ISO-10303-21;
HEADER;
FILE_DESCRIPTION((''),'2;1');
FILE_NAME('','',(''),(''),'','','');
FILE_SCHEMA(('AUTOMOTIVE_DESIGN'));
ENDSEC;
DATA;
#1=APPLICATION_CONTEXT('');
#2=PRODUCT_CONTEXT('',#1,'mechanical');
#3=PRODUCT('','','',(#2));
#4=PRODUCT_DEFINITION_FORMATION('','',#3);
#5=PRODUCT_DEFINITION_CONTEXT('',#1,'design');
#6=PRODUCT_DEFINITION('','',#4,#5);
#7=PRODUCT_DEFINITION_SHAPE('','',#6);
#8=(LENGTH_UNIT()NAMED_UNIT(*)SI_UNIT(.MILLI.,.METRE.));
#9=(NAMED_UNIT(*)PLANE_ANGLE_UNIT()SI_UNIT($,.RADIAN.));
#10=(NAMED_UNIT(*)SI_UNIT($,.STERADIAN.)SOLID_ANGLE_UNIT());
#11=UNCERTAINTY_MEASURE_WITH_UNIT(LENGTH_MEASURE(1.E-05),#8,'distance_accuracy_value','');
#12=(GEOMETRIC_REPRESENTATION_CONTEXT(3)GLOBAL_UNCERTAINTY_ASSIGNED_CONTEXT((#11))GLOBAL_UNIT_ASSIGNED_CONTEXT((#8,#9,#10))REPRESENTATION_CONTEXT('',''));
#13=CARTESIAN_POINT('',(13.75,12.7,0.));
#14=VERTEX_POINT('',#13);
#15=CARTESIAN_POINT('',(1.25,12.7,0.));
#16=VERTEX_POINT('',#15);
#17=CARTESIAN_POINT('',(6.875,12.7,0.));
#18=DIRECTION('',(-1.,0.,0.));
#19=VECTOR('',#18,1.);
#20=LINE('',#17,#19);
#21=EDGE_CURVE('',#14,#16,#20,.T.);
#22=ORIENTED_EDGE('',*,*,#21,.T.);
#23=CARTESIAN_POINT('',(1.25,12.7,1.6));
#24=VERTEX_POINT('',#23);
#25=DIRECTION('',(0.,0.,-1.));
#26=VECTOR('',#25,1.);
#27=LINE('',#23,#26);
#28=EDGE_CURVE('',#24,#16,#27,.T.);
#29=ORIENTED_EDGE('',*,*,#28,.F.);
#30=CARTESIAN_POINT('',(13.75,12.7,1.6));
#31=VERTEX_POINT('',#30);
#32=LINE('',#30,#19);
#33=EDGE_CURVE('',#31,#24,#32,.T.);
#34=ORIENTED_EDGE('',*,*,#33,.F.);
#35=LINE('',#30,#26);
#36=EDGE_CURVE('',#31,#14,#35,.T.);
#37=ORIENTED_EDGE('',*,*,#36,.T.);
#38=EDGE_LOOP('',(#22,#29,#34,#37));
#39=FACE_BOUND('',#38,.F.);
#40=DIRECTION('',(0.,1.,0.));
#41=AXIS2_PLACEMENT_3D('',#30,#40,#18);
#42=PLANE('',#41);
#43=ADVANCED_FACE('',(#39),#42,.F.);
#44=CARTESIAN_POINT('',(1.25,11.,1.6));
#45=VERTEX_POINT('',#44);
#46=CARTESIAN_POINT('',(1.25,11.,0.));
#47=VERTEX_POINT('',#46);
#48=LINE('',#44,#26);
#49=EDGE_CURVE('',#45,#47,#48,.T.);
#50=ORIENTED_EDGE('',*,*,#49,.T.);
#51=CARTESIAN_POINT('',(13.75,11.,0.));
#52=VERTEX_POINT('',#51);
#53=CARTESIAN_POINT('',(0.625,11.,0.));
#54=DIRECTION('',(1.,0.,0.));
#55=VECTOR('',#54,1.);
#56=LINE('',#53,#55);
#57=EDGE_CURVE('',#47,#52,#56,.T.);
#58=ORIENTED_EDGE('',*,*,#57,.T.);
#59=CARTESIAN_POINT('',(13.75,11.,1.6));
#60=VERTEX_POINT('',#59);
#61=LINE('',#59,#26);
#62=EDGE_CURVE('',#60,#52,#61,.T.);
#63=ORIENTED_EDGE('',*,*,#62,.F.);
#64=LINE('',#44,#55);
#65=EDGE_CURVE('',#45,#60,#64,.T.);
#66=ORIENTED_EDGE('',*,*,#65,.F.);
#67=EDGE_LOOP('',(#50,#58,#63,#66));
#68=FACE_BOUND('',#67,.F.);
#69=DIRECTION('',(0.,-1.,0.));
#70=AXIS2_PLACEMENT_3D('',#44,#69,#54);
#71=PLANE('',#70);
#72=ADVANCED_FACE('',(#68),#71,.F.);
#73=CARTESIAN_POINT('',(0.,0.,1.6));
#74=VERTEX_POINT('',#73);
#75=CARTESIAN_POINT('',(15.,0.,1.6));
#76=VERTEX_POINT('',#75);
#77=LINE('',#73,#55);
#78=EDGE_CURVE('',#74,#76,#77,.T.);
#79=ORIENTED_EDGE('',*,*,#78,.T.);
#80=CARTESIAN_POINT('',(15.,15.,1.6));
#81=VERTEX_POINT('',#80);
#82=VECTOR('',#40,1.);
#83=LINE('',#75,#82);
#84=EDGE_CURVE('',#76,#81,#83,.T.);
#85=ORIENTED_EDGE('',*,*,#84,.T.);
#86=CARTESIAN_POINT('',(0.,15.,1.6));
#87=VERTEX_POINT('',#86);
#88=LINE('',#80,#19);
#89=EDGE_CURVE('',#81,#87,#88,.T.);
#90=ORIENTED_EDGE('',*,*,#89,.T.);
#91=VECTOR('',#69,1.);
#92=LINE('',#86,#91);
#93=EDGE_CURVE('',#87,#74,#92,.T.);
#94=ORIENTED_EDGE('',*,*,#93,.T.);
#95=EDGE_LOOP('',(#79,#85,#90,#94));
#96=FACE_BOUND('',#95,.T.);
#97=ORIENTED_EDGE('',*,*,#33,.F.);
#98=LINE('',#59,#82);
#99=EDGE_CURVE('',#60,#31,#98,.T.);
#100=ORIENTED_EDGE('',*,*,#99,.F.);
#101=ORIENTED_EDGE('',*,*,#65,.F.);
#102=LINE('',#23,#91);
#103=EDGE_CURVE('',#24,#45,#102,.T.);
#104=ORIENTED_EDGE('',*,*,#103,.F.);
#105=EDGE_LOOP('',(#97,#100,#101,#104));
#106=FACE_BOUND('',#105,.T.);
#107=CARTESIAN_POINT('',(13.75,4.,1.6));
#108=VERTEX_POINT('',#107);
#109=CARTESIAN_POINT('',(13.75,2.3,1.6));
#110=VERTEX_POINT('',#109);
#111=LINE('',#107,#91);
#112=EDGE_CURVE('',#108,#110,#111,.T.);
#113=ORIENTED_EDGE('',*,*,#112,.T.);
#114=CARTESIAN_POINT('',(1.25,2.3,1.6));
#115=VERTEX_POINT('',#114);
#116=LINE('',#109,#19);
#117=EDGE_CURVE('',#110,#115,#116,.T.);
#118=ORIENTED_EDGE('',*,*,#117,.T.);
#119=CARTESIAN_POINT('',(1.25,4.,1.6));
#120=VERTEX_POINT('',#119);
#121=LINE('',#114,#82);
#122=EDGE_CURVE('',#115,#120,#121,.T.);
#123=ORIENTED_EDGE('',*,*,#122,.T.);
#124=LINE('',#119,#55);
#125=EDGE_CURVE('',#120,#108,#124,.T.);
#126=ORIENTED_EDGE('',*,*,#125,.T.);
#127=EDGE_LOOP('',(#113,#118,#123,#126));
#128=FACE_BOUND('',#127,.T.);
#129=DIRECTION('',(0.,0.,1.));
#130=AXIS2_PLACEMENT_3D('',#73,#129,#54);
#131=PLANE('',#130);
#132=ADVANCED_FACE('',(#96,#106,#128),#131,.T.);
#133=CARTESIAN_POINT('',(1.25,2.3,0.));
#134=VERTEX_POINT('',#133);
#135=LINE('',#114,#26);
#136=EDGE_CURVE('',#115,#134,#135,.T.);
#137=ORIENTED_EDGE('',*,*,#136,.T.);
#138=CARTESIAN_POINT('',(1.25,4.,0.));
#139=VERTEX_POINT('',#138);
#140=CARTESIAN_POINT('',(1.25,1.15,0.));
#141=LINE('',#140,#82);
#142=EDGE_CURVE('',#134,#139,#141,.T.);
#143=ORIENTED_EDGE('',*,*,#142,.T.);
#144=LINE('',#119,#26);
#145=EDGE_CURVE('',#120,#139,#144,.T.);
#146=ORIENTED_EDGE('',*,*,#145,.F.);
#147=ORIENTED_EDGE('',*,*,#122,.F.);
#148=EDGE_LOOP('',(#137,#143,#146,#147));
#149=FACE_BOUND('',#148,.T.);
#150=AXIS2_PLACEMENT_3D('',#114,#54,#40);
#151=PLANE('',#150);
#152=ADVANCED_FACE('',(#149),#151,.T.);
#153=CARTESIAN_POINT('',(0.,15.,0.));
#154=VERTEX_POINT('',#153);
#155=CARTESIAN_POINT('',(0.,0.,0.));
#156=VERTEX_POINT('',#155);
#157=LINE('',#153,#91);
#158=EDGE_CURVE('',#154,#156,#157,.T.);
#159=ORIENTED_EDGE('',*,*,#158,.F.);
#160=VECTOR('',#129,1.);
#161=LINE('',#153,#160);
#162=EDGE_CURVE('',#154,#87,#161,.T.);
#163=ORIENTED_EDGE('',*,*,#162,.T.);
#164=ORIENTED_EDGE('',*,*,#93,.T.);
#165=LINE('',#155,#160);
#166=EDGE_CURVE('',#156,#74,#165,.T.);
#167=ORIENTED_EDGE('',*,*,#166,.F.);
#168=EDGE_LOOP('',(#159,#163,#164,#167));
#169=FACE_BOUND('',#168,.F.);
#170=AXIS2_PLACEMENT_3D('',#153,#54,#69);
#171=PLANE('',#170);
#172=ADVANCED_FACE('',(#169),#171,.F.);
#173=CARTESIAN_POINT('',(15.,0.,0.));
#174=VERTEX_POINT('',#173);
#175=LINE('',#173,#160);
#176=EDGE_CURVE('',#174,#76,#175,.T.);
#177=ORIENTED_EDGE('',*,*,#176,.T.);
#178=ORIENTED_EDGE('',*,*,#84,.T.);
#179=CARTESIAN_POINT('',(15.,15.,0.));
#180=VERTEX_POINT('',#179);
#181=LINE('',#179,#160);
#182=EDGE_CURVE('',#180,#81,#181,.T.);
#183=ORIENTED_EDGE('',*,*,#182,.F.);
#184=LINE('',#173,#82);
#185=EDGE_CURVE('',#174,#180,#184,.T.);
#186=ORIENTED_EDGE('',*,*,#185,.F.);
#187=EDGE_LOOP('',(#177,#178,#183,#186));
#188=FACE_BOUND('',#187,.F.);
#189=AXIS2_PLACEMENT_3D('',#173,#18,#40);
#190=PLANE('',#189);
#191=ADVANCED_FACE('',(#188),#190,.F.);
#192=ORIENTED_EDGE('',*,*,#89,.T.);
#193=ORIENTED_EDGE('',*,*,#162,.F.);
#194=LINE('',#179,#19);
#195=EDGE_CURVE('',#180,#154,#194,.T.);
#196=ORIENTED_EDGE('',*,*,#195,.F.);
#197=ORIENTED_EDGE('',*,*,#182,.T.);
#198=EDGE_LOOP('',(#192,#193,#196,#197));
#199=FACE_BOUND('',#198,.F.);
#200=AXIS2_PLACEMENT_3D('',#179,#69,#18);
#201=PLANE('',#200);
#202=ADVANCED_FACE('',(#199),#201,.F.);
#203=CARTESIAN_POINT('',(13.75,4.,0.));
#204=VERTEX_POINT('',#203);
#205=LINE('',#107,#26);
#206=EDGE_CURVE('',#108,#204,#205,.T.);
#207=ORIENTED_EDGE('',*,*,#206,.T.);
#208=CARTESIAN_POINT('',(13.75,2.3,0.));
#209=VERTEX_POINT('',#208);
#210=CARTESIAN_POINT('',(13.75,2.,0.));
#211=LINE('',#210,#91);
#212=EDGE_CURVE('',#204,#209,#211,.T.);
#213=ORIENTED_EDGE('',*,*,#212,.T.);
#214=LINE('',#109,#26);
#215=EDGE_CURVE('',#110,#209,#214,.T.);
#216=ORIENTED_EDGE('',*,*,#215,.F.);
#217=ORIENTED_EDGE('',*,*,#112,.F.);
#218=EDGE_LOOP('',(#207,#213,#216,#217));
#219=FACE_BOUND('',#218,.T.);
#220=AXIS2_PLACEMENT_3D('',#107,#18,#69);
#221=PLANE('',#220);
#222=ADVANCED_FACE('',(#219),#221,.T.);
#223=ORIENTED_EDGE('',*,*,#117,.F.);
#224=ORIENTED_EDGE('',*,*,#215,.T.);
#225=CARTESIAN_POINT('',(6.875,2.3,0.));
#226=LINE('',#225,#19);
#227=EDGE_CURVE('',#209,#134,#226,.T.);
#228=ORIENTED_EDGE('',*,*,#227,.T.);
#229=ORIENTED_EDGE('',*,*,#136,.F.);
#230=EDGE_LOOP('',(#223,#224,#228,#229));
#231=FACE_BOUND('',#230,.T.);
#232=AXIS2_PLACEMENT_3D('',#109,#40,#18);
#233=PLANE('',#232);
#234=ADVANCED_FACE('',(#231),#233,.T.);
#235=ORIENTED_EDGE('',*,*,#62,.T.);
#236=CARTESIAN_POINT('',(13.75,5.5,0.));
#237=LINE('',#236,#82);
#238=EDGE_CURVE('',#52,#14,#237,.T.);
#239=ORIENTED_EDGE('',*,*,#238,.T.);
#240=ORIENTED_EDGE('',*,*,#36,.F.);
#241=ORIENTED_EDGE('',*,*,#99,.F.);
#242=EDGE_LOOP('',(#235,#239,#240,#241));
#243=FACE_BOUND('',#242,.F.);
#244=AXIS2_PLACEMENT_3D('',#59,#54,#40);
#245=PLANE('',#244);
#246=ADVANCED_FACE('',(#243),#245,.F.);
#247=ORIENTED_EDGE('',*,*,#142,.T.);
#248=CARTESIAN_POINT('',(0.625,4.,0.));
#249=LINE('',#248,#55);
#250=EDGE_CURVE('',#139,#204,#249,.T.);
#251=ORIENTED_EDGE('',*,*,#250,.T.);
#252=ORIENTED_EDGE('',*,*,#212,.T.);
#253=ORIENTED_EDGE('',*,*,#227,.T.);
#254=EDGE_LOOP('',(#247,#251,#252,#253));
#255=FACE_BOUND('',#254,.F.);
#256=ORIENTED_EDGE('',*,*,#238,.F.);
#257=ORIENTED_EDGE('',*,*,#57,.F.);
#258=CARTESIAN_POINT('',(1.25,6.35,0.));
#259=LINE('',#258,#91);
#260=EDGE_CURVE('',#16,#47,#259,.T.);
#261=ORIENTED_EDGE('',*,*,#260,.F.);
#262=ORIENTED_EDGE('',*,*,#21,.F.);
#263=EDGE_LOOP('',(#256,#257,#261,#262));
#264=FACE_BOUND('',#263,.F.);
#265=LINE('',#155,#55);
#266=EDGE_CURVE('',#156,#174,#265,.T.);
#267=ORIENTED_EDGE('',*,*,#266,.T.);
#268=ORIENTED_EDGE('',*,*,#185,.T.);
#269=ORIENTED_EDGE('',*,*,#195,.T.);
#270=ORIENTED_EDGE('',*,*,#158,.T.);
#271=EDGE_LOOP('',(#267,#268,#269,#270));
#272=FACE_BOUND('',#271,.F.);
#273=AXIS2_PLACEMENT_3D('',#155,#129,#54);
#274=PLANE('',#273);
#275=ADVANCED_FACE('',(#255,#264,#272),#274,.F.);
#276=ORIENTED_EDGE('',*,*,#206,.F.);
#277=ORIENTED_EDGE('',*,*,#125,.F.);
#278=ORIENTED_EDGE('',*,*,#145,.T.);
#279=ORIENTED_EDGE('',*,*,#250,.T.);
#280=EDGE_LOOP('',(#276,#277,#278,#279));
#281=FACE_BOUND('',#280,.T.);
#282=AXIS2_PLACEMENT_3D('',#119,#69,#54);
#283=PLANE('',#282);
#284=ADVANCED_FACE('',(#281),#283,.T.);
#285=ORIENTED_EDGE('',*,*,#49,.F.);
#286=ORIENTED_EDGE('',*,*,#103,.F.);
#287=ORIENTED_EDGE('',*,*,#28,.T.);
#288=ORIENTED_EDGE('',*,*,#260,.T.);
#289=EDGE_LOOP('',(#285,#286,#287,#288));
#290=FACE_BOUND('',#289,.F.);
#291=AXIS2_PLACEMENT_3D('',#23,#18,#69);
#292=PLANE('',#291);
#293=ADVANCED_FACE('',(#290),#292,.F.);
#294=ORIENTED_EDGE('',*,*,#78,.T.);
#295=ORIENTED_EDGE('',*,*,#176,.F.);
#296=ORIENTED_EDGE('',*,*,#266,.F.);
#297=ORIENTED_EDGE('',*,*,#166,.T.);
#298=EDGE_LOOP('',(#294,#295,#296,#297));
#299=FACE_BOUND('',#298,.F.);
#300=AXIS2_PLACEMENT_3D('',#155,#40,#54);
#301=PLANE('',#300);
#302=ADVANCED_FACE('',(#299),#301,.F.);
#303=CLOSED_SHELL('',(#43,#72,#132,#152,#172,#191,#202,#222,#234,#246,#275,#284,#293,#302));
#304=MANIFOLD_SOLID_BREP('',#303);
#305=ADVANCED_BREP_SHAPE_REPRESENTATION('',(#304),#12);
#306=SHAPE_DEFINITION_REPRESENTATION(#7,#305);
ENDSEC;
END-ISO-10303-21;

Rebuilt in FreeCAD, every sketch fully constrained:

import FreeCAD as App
import Part
import Sketcher

V = App.Vector
Q = App.Units.Quantity


def add_polygon(sketch, points):
    """Adds a closed chain of lines whose ends are joined by coincident constraints."""
    first, n = sketch.GeometryCount, len(points)
    for a, b in zip(points, points[1:] + points[:1]):
        sketch.addGeometry(Part.LineSegment(App.Vector(*a, 0), App.Vector(*b, 0)), False)
    for i in range(n):
        sketch.addConstraint(Sketcher.Constraint("Coincident", first + i, 2, first + (i + 1) % n, 1))

doc = App.newDocument("Part")
body = doc.addObject("PartDesign::Body", "Body")

sketch1 = body.newObject("Sketcher::SketchObject", "Sketch")
sketch1.AttachmentSupport = (doc.getObject("XY_Plane"), [""])
sketch1.MapMode = "FlatFace"
add_polygon(sketch1, [(0, 15), (0, 0), (15, 0), (15, 15)])
sketch1.addConstraint([
    Sketcher.Constraint("Vertical", 0),
    Sketcher.Constraint("Horizontal", 1),
    Sketcher.Constraint("Vertical", 2),
    Sketcher.Constraint("Horizontal", 3),
    Sketcher.Constraint("Coincident", 0, 2, -1, 1),
    Sketcher.Constraint("Equal", 3, 0),
    Sketcher.Constraint("DistanceX", 1, 1, 1, 2, Q("15 mm")),
])
pad1 = body.newObject("PartDesign::Pad", "Pad")
pad1.Profile = sketch1
pad1.Length = 1.6

sketch2 = body.newObject("Sketcher::SketchObject", "Sketch001")
sketch2.AttachmentSupport = (doc.getObject("XY_Plane"), [""])
sketch2.MapMode = "FlatFace"
sketch2.AttachmentOffset = App.Placement(V(0, 0, 1.6), App.Rotation())
add_polygon(sketch2, [(13.8, 4), (1.2, 4), (1.2, 2.3), (13.8, 2.3)])
add_polygon(sketch2, [(1.2, 12.7), (1.2, 11), (13.8, 11), (13.8, 12.7)])
sketch2.addConstraint([
    Sketcher.Constraint("Horizontal", 0),
    Sketcher.Constraint("Vertical", 1),
    Sketcher.Constraint("Horizontal", 2),
    Sketcher.Constraint("Vertical", 3),
    Sketcher.Constraint("Vertical", 4),
    Sketcher.Constraint("Horizontal", 5),
    Sketcher.Constraint("Vertical", 6),
    Sketcher.Constraint("Horizontal", 7),
    Sketcher.Constraint("Vertical", 1, 2, 4, 2),
    Sketcher.Constraint("Vertical", 3, 2, 5, 2),
    Sketcher.Constraint("Equal", 3, 4),
    Sketcher.Constraint("DistanceX", 0, 2, 0, 1, Q("12.5 mm")),
    Sketcher.Constraint("DistanceY", 1, 2, 1, 1, Q("1.7 mm")),
    Sketcher.Constraint("DistanceY", 0, 2, 4, 2, Q("7 mm")),
    Sketcher.Constraint("DistanceY", -1, 1, 0, 2, Q("4 mm")),
    Sketcher.Constraint("DistanceX", -1, 1, 0, 2, Q("1.25 mm")),
])
pocket1 = body.newObject("PartDesign::Pocket", "Pocket")
pocket1.Profile = sketch2
pocket1.Type = "ThroughAll"

doc.recompute()
